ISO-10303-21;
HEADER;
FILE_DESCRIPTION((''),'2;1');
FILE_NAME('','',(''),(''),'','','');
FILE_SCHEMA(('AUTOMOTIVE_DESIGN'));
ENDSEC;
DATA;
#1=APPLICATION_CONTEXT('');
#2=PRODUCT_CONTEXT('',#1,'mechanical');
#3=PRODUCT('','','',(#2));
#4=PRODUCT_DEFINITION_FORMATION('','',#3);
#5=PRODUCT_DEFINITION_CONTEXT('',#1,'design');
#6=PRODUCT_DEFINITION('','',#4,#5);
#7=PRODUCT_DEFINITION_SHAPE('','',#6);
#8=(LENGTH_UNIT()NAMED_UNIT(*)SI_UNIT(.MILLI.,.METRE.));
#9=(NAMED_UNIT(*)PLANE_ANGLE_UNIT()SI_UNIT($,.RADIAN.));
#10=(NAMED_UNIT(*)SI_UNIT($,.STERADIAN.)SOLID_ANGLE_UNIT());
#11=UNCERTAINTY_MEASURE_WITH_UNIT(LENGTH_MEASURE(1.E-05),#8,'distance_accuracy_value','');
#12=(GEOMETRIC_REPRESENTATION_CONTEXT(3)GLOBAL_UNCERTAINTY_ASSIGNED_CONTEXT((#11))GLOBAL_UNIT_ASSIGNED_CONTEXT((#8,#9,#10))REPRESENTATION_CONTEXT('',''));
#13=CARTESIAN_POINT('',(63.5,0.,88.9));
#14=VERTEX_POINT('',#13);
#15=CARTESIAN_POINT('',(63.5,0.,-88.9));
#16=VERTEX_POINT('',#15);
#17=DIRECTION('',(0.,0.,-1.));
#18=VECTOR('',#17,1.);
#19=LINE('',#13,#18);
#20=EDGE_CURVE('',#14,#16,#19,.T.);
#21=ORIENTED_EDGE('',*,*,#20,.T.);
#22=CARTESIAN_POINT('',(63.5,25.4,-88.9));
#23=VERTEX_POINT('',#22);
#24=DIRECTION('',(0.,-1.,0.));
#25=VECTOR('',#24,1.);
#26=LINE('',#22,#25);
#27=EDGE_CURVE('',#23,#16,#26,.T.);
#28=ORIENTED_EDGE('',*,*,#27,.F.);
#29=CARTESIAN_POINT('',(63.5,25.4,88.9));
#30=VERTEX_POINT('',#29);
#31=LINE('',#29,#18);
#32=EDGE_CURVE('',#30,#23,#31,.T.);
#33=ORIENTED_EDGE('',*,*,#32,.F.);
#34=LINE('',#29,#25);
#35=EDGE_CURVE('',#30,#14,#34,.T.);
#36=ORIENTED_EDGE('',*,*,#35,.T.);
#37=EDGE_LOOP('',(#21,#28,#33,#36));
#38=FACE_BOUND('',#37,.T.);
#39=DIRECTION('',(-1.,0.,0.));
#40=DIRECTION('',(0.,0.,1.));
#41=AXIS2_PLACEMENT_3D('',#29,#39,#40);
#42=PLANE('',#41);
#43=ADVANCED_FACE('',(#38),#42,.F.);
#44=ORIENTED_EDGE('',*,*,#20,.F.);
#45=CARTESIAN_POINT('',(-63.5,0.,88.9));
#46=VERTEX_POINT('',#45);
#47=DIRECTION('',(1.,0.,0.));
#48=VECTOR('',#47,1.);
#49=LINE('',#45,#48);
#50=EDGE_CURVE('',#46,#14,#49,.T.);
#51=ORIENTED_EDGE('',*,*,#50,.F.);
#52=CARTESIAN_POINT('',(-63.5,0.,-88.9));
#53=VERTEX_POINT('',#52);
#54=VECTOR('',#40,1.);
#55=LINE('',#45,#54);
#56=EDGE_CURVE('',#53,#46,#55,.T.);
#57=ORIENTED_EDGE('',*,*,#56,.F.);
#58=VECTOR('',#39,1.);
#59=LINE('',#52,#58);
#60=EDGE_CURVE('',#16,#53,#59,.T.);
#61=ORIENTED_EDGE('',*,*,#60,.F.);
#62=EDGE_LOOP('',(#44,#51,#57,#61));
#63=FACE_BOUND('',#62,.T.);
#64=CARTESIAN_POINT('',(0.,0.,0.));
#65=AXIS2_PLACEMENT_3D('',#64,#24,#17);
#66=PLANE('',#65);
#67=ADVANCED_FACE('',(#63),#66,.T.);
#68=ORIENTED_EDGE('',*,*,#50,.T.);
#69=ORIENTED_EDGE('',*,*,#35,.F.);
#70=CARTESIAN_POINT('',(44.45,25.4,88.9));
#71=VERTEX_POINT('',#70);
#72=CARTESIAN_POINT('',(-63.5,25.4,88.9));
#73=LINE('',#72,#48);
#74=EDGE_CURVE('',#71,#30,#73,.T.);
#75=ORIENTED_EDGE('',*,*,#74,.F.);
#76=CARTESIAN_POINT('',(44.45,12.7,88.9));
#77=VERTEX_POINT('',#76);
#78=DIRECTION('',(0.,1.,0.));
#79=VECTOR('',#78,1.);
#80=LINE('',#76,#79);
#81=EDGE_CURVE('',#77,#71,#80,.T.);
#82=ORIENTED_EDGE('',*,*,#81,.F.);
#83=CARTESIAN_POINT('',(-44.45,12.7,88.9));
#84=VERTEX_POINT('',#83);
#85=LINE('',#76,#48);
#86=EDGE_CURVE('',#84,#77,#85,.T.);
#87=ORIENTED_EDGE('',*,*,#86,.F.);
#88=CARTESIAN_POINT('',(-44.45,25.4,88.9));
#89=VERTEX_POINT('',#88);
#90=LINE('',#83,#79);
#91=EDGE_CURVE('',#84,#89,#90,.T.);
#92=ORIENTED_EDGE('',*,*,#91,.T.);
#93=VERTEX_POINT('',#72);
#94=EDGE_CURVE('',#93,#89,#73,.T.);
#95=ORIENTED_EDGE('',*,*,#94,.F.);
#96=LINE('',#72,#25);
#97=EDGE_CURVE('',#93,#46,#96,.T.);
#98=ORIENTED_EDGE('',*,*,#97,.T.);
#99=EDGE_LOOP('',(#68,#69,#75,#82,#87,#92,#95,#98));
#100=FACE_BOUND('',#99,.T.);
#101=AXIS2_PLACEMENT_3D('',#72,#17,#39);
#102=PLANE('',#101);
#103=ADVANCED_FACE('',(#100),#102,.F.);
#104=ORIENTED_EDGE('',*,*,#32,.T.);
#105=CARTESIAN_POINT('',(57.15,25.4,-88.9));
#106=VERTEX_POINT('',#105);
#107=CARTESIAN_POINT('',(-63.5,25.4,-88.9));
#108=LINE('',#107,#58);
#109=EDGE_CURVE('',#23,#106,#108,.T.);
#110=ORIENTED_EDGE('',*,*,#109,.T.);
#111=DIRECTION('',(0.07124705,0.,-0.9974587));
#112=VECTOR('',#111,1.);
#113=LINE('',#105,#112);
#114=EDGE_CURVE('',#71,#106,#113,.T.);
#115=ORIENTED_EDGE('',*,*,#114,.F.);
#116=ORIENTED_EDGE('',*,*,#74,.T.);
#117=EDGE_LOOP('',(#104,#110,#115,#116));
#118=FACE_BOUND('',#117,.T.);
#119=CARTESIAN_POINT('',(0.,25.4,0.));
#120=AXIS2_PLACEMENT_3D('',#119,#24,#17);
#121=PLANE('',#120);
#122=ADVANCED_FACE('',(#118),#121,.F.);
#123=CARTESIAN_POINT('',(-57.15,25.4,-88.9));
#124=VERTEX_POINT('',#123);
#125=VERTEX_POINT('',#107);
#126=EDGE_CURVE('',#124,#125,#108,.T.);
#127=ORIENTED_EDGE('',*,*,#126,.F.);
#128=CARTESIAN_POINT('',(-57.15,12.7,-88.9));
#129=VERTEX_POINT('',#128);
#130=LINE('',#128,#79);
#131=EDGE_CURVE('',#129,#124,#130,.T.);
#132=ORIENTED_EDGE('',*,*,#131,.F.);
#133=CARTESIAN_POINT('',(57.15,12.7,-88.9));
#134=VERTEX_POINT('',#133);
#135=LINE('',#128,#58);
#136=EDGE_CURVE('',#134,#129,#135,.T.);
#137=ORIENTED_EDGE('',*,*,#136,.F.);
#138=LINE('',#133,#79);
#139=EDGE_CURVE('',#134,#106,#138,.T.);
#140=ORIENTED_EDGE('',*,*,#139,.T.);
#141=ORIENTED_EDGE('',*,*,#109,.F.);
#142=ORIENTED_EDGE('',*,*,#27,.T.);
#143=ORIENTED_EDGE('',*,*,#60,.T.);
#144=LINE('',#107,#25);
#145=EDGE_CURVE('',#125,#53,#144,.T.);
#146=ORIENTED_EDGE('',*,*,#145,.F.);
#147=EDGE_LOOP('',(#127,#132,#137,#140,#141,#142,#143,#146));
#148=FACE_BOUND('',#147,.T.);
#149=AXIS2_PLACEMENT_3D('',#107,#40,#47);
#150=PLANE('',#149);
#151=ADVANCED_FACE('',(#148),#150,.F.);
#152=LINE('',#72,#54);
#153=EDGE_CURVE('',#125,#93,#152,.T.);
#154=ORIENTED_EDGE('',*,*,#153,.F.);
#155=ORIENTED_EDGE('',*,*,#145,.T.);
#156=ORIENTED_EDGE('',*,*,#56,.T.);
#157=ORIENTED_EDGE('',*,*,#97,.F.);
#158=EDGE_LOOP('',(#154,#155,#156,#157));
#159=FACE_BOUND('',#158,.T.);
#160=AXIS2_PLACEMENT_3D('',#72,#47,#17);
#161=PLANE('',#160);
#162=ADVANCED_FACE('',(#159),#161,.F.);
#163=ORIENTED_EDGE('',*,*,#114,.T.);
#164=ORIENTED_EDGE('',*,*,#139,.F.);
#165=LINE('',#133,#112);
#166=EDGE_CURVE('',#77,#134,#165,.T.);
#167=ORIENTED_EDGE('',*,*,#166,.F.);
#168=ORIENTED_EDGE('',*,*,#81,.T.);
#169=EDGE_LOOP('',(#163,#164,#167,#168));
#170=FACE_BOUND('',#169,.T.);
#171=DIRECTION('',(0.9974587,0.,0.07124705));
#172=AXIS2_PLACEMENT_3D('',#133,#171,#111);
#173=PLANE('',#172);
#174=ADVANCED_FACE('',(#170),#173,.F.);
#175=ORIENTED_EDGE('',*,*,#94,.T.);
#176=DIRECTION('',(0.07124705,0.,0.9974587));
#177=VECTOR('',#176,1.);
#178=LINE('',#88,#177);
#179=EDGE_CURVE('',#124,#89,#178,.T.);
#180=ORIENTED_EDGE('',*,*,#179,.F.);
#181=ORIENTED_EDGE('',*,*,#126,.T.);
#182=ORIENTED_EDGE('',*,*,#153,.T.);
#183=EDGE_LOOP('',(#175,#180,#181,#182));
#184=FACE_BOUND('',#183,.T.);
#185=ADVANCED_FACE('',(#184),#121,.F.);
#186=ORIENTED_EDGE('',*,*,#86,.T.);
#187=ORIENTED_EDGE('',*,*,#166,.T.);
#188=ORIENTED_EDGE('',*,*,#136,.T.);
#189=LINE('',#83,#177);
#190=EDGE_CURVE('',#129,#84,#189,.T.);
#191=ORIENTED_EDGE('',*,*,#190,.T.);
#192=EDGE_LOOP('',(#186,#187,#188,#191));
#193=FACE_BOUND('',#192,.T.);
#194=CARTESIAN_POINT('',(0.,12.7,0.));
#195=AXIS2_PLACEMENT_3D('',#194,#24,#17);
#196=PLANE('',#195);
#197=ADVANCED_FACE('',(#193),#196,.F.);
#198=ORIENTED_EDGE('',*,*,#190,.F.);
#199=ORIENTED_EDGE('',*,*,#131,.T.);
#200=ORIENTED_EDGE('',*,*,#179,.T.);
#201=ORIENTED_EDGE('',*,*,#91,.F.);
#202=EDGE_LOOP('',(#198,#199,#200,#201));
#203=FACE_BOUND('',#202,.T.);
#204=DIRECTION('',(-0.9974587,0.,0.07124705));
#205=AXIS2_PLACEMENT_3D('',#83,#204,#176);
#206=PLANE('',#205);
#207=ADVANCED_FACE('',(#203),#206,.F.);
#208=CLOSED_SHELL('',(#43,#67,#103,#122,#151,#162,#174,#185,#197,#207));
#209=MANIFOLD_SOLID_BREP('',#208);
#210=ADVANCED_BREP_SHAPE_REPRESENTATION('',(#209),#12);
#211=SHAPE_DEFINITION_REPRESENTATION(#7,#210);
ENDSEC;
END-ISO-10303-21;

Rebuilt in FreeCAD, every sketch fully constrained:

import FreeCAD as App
import Part
import Sketcher

V = App.Vector
Q = App.Units.Quantity

doc = App.newDocument("Part")
body = doc.addObject("PartDesign::Body", "Body")

sketch1 = body.newObject("Sketcher::SketchObject", "Sketch")
sketch1.AttachmentSupport = (doc.getObject("XZ_Plane"), [""])
sketch1.MapMode = "FlatFace"
sketch1.addGeometry([
    Part.LineSegment(V(-64, -89, 0), V(-64, 89, 0)),
    Part.LineSegment(V(-64, 89, 0), V(64, 89, 0)),
    Part.LineSegment(V(64, 89, 0), V(64, -89, 0)),
    Part.LineSegment(V(64, -89, 0), V(-64, -89, 0)),
], False)
sketch1.addConstraint([
    Sketcher.Constraint("Coincident", 0, 2, 1, 1),
    Sketcher.Constraint("Coincident", 1, 2, 2, 1),
    Sketcher.Constraint("Coincident", 2, 2, 3, 1),
    Sketcher.Constraint("Coincident", 3, 2, 0, 1),
    Sketcher.Constraint("Vertical", 0),
    Sketcher.Constraint("Horizontal", 1),
    Sketcher.Constraint("Vertical", 2),
    Sketcher.Constraint("Horizontal", 3),
    Sketcher.Constraint("Symmetric", 0, 2, 2, 2, -1, 1),
    Sketcher.Constraint("DistanceX", 1, 1, 1, 2, Q("5 in")),
    Sketcher.Constraint("DistanceY", 0, 1, 0, 2, Q("7 in")),
])
pad1 = body.newObject("PartDesign::Pad", "Pad")
pad1.Profile = sketch1
pad1.Length = Q("1 in")
pad1.Reversed = True

sketch2 = body.newObject("Sketcher::SketchObject", "Sketch001")
sketch2.AttachmentSupport = (doc.getObject("XZ_Plane"), [""])
sketch2.MapMode = "FlatFace"
sketch2.AttachmentOffset = App.Placement(V(0, 0, -1 * 25.4), App.Rotation())
sketch2.addGeometry([
    Part.LineSegment(V(57, -89, 0), V(-57, -89, 0)),
    Part.LineSegment(V(-57, -89, 0), V(-44, 89, 0)),
    Part.LineSegment(V(-44, 89, 0), V(44, 89, 0)),
    Part.LineSegment(V(44, 89, 0), V(57, -89, 0)),
], False)
sketch2.addConstraint([
    Sketcher.Constraint("Coincident", 0, 2, 1, 1),
    Sketcher.Constraint("Coincident", 1, 2, 2, 1),
    Sketcher.Constraint("Coincident", 2, 2, 3, 1),
    Sketcher.Constraint("Coincident", 3, 2, 0, 1),
    Sketcher.Constraint("Horizontal", 0),
    Sketcher.Constraint("Horizontal", 2),
    Sketcher.Constraint("Equal", 1, 3),
    Sketcher.Constraint("DistanceX", 0, 2, 0, 1, Q("4.5 in")),
    Sketcher.Constraint("DistanceX", 2, 1, 2, 2, Q("3.5 in")),
    Sketcher.Constraint("DistanceY", 0, 2, 1, 2, Q("7 in")),
    Sketcher.Constraint("DistanceY", 0, 2, -1, 1, Q("3.5 in")),
    Sketcher.Constraint("DistanceX", 0, 2, -1, 1, Q("2.25 in")),
])
pocket1 = body.newObject("PartDesign::Pocket", "Pocket")
pocket1.Profile = sketch2
pocket1.Length = Q("0.5 in")
pocket1.Reversed = True

doc.recompute()
